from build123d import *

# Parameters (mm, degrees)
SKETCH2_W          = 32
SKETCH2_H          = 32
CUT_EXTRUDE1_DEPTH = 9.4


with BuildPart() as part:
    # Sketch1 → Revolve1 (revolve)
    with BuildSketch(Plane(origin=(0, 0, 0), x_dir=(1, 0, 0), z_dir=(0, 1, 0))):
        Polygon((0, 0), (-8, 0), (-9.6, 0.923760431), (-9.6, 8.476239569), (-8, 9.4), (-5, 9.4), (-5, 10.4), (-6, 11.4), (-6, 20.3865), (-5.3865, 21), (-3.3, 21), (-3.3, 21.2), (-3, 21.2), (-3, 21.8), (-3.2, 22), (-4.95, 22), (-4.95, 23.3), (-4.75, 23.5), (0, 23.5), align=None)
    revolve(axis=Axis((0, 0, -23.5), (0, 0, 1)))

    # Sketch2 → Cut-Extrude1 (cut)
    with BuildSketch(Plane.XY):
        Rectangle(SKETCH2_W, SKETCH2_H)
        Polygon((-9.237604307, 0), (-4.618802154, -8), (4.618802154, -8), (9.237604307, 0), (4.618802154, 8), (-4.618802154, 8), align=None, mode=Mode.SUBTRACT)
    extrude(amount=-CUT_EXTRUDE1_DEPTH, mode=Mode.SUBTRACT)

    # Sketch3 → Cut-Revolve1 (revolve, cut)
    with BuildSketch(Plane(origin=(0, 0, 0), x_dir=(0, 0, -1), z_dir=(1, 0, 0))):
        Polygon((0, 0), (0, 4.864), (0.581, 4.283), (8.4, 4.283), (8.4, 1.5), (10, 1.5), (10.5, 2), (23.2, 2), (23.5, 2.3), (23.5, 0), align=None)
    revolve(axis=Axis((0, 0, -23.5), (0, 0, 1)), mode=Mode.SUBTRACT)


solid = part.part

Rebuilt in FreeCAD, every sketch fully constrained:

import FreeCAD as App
import Part
import Sketcher

V = App.Vector
Q = App.Units.Quantity


def add_polygon(sketch, points):
    """Adds a closed chain of lines whose ends are joined by coincident constraints."""
    first, n = sketch.GeometryCount, len(points)
    for a, b in zip(points, points[1:] + points[:1]):
        sketch.addGeometry(Part.LineSegment(App.Vector(*a, 0), App.Vector(*b, 0)), False)
    for i in range(n):
        sketch.addConstraint(Sketcher.Constraint("Coincident", first + i, 2, first + (i + 1) % n, 1))

doc = App.newDocument("Part")
body = doc.addObject("PartDesign::Body", "Body")

# Sketch on XZ plane
sketch1 = body.newObject("Sketcher::SketchObject", "Sketch")
sketch1.AttachmentSupport = (doc.getObject("XZ_Plane"), [""])
sketch1.MapMode = "FlatFace"
add_polygon(sketch1, [(-8, 0), (0, 0), (0, -23.5), (-4.75, -23.5), (-4.95, -23.3), (-4.95, -22), (-3.2, -22), (-3, -21.8), (-3, -21.2), (-3.3, -21.2), (-3.3, -21), (-5.39, -21), (-6, -20.39), (-6, -11.4), (-5, -10.4), (-5, -9.4), (-8, -9.4), (-9.6, -8.48), (-9.6, -0.92)])  # lines 0-18
sketch1.addConstraint(Sketcher.Constraint("Horizontal", 0))
sketch1.addConstraint(Sketcher.Constraint("Vertical", 1))
sketch1.addConstraint(Sketcher.Constraint("Horizontal", 2))
sketch1.addConstraint(Sketcher.Constraint("Vertical", 4))
sketch1.addConstraint(Sketcher.Constraint("Horizontal", 5))
sketch1.addConstraint(Sketcher.Constraint("Vertical", 7))
sketch1.addConstraint(Sketcher.Constraint("Horizontal", 8))
sketch1.addConstraint(Sketcher.Constraint("Vertical", 9))
sketch1.addConstraint(Sketcher.Constraint("Horizontal", 10))
sketch1.addConstraint(Sketcher.Constraint("Vertical", 12))
sketch1.addConstraint(Sketcher.Constraint("Vertical", 14))
sketch1.addConstraint(Sketcher.Constraint("Horizontal", 15))
sketch1.addConstraint(Sketcher.Constraint("Vertical", 17))
sketch1.addConstraint(Sketcher.Constraint("Coincident", 0, 2, -1, 1))
sketch1.addConstraint(Sketcher.Constraint("Perpendicular", 3, 6))
sketch1.addConstraint(Sketcher.Constraint("Perpendicular", 6, 11))
sketch1.addConstraint(Sketcher.Constraint("Perpendicular", 11, 13))
sketch1.addConstraint(Sketcher.Constraint("Vertical", 15, 2, 18, 2))
sketch1.addConstraint(Sketcher.Constraint("Equal", 3, 6))
sketch1.addConstraint(Sketcher.Constraint("Equal", 16, 18))
sketch1.addConstraint(Sketcher.Constraint("DistanceX", 0, 1, 0, 2, 8.0))
sketch1.addConstraint(Sketcher.Constraint("DistanceX", 15, 2, 15, 1, 3.0))
sketch1.addConstraint(Sketcher.Constraint("DistanceY", 14, 1, 14, 2, 1.0))
sketch1.addConstraint(Sketcher.Constraint("Angle", 3, Q("135 deg")))
sketch1.addConstraint(Sketcher.Constraint("Angle", 16, Q("150 deg")))
sketch1.addConstraint(Sketcher.Constraint("DistanceX", 8, 2, 8, 1, 0.3))
sketch1.addConstraint(Sketcher.Constraint("DistanceY", 1, 2, 1, 1, 23.5))
sketch1.addConstraint(Sketcher.Constraint("DistanceY", 4, 1, 4, 2, 1.3))
sketch1.addConstraint(Sketcher.Constraint("DistanceY", 7, 1, 7, 2, 0.6))
sketch1.addConstraint(Sketcher.Constraint("DistanceY", 9, 1, 9, 2, 0.2))
sketch1.addConstraint(Sketcher.Constraint("DistanceY", 4, 2, -1, 1, 22.0))
sketch1.addConstraint(Sketcher.Constraint("DistanceX", 6, 2, -1, 1, 3.0))
sketch1.addConstraint(Sketcher.Constraint("DistanceX", 11, 2, -1, 1, 6.0))
sketch1.addConstraint(Sketcher.Constraint("DistanceX", 2, 2, 2, 1, 4.75))
sketch1.addConstraint(Sketcher.Constraint("DistanceY", 12, 2, -1, 1, 11.4))
sketch1.addConstraint(Sketcher.Constraint("DistanceX", 16, 2, -1, 1, 9.6))
sketch1.addConstraint(Sketcher.Constraint("DistanceX", 10, 2, 10, 1, 2.0865))
revolution = body.newObject("PartDesign::Revolution", "Revolution")
revolution.Profile = sketch1
revolution.ReferenceAxis = (sketch1, ["V_Axis"])
revolution.Angle = 360

# Sketch on XY plane
sketch2 = body.newObject("Sketcher::SketchObject", "Sketch001")
sketch2.AttachmentSupport = (doc.getObject("XY_Plane"), [""])
sketch2.MapMode = "FlatFace"
add_polygon(sketch2, [(-16, 16), (-16, -16), (16, -16), (16, 16)])  # lines 0-3
add_polygon(sketch2, [(-5, -8), (-9, 0), (-5, 8), (5, 8), (9, 0), (5, -8)])  # lines 4-9
sketch2.addConstraint(Sketcher.Constraint("Vertical", 0))
sketch2.addConstraint(Sketcher.Constraint("Horizontal", 1))
sketch2.addConstraint(Sketcher.Constraint("Vertical", 2))
sketch2.addConstraint(Sketcher.Constraint("Horizontal", 3))
sketch2.addConstraint(Sketcher.Constraint("Horizontal", 6))
sketch2.addConstraint(Sketcher.Constraint("Horizontal", 9))
sketch2.addConstraint(Sketcher.Constraint("Symmetric", 0, 2, 2, 2, -1, 1))
sketch2.addConstraint(Sketcher.Constraint("Symmetric", 4, 2, 7, 2, -1, 1))
sketch2.addConstraint(Sketcher.Constraint("Symmetric", 5, 2, 8, 2, -1, 1))
sketch2.addConstraint(Sketcher.Constraint("PointOnObject", 4, 2, -1))
sketch2.addConstraint(Sketcher.Constraint("Parallel", 4, 7))
sketch2.addConstraint(Sketcher.Constraint("Vertical", 6, 2, 8, 2))
sketch2.addConstraint(Sketcher.Constraint("Equal", 3, 0))
sketch2.addConstraint(Sketcher.Constraint("DistanceX", 1, 1, 1, 2, 32.0))
sketch2.addConstraint(Sketcher.Constraint("Angle", 4, Q("120 deg")))
sketch2.addConstraint(Sketcher.Constraint("DistanceY", -1, 1, 5, 2, 8.0))
sketch2.addConstraint(Sketcher.Constraint("DistanceX", 6, 1, 6, 2, 9.237604))
pocket1 = body.newObject("PartDesign::Pocket", "Pocket")
pocket1.Profile = sketch2
pocket1.Length = 9.4

# Sketch on YZ plane
sketch3 = body.newObject("Sketcher::SketchObject", "Sketch002")
sketch3.AttachmentSupport = (doc.getObject("YZ_Plane"), [""])
sketch3.MapMode = "FlatFace"
add_polygon(sketch3, [(4.86, 0), (0, 0), (0, -23.5), (2.3, -23.5), (2, -23.2), (2, -10.5), (1.5, -10), (1.5, -8.4), (4.28, -8.4), (4.28, -0.58)])  # lines 0-9
sketch3.addConstraint(Sketcher.Constraint("Horizontal", 0))
sketch3.addConstraint(Sketcher.Constraint("Vertical", 1))
sketch3.addConstraint(Sketcher.Constraint("Horizontal", 2))
sketch3.addConstraint(Sketcher.Constraint("Vertical", 4))
sketch3.addConstraint(Sketcher.Constraint("Vertical", 6))
sketch3.addConstraint(Sketcher.Constraint("Horizontal", 7))
sketch3.addConstraint(Sketcher.Constraint("Vertical", 8))
sketch3.addConstraint(Sketcher.Constraint("Coincident", 0, 2, -1, 1))
sketch3.addConstraint(Sketcher.Constraint("Parallel", 3, 5))
sketch3.addConstraint(Sketcher.Constraint("Perpendicular", 5, 9))
sketch3.addConstraint(Sketcher.Constraint("Angle", 3, Q("135 deg")))
sketch3.addConstraint(Sketcher.Constraint("DistanceX", 2, 1, 2, 2, 2.3))
sketch3.addConstraint(Sketcher.Constraint("DistanceY", 1, 2, 1, 1, 23.5))
sketch3.addConstraint(Sketcher.Constraint("DistanceY", 4, 1, 4, 2, 12.7))
sketch3.addConstraint(Sketcher.Constraint("DistanceY", 6, 1, 6, 2, 1.6))
sketch3.addConstraint(Sketcher.Constraint("DistanceX", -1, 1, 3, 2, 2.0))
sketch3.addConstraint(Sketcher.Constraint("DistanceY", 5, 2, -1, 1, 10.0))
sketch3.addConstraint(Sketcher.Constraint("DistanceX", 0, 2, 0, 1, 4.864))
sketch3.addConstraint(Sketcher.Constraint("DistanceX", 7, 1, 7, 2, 2.783))
groove = body.newObject("PartDesign::Groove", "Groove")
groove.Profile = sketch3
groove.ReferenceAxis = (sketch3, ["V_Axis"])
groove.Angle = 360

doc.recompute()
